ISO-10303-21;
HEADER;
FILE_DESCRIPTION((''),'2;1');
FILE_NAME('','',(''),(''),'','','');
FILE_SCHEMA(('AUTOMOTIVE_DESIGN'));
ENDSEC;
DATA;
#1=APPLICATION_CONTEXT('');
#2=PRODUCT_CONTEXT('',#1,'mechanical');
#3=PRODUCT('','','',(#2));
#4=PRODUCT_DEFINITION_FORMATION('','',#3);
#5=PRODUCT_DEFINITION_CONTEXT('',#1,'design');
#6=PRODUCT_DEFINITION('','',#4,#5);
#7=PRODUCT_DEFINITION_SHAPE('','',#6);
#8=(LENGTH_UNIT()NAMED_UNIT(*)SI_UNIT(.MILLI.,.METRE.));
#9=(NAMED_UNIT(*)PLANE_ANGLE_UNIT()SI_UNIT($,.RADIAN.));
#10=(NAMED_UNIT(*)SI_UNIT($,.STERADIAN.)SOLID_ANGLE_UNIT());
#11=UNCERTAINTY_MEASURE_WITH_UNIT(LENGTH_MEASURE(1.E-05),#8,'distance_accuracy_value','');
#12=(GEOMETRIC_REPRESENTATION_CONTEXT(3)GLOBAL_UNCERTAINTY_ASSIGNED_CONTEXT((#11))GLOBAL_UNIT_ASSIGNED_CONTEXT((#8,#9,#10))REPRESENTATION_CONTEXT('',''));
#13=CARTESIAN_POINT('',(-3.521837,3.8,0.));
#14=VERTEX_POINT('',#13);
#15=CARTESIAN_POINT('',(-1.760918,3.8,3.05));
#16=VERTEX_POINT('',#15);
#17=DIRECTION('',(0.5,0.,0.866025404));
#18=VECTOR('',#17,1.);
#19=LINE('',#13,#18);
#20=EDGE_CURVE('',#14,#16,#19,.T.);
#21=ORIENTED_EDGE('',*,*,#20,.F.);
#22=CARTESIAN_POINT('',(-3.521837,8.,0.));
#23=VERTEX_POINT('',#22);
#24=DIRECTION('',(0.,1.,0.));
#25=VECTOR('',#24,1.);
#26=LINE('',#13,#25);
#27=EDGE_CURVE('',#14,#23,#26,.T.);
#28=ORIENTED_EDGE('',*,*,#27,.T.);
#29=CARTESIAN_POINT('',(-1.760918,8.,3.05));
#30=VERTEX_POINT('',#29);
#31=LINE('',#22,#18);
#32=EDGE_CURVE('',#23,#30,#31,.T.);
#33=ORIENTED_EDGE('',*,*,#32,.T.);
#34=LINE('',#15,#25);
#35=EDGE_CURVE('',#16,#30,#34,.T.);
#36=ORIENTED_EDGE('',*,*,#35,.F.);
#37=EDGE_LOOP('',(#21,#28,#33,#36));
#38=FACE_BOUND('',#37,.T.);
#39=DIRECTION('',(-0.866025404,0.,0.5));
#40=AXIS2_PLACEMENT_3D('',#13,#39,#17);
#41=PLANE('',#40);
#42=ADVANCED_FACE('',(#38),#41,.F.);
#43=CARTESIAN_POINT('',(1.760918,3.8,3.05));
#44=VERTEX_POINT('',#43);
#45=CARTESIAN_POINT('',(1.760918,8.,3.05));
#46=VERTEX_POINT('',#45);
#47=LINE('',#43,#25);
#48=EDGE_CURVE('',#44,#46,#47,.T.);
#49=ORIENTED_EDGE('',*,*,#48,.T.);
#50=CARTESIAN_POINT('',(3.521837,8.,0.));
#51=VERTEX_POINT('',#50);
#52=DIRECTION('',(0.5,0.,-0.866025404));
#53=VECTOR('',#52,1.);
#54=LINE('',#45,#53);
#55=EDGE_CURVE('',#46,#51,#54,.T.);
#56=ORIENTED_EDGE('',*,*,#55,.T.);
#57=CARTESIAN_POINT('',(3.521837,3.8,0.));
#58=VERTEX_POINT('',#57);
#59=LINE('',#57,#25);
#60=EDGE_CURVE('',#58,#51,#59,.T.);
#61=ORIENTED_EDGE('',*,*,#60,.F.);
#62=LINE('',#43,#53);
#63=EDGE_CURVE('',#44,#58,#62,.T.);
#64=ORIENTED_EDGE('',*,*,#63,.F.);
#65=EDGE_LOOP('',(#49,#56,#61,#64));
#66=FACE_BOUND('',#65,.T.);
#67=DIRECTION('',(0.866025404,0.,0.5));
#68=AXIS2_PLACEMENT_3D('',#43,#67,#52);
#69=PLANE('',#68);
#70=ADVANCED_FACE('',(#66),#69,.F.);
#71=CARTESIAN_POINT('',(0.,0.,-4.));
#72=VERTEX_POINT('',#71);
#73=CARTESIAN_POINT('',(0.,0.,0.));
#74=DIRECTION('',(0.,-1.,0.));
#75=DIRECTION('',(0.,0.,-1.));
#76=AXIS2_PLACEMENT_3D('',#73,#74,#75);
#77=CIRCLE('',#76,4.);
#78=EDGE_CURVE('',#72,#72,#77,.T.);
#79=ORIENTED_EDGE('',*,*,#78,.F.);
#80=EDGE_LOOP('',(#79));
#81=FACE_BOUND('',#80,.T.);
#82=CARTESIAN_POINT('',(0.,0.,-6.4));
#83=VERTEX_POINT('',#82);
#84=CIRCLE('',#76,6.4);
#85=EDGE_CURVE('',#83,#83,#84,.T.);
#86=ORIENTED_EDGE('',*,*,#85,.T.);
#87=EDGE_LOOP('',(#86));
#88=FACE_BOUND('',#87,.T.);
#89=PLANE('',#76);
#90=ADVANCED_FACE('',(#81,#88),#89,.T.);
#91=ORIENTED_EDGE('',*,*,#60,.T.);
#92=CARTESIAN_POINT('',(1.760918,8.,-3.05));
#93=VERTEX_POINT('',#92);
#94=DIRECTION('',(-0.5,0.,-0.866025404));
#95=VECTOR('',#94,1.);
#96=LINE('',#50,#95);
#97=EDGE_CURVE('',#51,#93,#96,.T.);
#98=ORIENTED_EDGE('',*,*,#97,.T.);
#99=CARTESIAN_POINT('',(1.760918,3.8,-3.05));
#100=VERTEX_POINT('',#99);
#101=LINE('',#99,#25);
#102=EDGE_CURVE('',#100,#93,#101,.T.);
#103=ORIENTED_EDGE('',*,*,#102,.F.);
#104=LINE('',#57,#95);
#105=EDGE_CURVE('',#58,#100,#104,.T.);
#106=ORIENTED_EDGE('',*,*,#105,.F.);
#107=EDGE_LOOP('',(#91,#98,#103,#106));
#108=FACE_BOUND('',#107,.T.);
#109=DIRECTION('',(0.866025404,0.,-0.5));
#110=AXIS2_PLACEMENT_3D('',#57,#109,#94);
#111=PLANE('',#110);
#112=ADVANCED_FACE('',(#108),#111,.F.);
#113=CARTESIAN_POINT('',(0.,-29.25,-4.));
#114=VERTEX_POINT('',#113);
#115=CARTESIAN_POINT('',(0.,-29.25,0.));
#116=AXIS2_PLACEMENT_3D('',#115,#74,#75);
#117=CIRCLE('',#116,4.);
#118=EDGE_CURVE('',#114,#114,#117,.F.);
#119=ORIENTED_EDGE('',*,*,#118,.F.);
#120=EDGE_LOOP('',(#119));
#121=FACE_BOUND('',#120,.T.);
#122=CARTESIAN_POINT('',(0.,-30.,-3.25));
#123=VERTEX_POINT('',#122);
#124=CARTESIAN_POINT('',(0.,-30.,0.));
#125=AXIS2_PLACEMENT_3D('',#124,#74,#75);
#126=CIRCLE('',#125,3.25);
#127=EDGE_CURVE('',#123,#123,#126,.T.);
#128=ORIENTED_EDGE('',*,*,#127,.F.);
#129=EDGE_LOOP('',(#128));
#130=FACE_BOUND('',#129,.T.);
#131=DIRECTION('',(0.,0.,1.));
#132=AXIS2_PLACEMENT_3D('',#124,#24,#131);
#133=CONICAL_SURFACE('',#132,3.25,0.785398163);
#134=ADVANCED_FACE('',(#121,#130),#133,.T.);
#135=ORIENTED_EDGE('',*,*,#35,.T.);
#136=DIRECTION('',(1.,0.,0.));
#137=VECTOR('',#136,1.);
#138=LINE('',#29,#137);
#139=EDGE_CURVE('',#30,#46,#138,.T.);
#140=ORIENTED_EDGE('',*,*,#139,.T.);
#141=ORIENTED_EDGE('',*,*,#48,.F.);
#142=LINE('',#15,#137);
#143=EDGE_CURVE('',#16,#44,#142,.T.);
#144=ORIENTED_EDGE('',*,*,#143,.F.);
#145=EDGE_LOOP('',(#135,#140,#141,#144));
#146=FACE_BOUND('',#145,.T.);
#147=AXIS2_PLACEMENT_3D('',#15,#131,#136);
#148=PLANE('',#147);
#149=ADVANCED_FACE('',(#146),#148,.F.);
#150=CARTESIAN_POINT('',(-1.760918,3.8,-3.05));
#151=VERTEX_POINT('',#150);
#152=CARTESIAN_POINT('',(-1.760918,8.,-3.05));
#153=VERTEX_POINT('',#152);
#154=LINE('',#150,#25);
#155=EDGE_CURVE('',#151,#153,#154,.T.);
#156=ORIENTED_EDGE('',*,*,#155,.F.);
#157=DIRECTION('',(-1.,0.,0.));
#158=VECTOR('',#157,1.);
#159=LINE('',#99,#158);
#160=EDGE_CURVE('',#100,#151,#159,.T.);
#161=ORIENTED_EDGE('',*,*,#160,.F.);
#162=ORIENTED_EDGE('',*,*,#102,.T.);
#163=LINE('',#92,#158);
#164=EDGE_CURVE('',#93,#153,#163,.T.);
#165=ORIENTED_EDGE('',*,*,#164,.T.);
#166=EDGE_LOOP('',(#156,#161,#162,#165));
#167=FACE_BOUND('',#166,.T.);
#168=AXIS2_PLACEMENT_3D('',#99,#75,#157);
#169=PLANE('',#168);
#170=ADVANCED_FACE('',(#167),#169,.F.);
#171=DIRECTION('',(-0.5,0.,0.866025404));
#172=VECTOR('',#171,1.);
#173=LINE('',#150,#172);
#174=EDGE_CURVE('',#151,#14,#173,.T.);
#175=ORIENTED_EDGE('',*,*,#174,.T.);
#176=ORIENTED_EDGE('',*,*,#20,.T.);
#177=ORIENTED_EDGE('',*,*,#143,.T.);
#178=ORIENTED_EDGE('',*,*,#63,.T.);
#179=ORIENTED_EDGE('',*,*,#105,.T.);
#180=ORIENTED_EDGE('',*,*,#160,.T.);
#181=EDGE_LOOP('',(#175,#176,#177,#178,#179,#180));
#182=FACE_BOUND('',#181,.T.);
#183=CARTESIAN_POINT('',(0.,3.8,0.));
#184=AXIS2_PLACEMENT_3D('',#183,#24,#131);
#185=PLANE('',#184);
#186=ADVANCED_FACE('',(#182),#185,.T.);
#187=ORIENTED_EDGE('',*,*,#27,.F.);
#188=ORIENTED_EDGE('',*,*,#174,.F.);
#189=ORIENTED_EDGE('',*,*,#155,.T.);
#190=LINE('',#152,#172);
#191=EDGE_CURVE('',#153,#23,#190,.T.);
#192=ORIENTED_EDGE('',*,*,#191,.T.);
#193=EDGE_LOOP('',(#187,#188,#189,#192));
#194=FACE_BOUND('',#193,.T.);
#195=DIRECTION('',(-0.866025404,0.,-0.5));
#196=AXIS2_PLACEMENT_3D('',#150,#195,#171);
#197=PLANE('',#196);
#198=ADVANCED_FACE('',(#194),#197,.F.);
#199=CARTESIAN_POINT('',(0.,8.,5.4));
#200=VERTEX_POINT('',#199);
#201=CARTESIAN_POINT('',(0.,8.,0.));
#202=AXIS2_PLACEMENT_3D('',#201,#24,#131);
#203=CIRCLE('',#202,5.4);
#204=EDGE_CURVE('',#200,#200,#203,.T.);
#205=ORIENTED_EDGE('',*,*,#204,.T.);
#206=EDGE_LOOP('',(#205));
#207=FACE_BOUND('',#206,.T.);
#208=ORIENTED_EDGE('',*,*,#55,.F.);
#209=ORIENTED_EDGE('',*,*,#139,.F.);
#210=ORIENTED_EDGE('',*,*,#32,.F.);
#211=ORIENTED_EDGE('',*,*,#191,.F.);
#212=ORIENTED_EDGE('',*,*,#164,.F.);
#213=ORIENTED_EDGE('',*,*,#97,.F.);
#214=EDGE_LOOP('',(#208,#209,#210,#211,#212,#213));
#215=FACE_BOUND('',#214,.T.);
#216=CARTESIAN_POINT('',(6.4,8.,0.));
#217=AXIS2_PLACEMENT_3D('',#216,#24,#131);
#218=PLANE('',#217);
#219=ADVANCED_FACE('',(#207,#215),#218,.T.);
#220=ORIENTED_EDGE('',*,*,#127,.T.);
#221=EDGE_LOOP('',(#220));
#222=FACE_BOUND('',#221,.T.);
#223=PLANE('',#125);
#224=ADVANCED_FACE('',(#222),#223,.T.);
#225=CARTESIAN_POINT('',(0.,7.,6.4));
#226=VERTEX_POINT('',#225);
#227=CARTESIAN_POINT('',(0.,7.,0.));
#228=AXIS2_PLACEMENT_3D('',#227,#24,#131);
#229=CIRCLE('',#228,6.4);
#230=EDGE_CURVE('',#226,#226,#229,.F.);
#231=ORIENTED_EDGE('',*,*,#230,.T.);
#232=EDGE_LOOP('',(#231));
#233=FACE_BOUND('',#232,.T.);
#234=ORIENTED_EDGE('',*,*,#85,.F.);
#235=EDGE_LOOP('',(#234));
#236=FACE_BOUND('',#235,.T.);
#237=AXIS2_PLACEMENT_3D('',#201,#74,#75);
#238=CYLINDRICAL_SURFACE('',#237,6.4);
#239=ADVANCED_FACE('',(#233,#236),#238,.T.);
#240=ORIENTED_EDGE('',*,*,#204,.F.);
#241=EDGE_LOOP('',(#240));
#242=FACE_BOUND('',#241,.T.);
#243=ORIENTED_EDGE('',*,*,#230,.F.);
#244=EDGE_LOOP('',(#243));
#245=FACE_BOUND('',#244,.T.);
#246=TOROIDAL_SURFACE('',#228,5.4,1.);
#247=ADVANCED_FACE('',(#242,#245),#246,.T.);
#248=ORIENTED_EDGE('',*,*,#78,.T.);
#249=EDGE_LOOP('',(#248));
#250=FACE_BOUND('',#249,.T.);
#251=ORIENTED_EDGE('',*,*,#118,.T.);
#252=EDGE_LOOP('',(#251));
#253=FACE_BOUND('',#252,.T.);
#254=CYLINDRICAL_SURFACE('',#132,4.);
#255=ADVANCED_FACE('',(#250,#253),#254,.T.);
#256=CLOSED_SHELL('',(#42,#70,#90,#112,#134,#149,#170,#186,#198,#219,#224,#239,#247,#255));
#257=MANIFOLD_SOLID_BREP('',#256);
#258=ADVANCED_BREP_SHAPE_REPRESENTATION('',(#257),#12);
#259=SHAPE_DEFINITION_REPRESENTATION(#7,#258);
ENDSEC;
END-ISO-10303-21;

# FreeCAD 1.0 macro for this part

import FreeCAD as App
import Part
import Sketcher
Q = App.Units.Quantity


def edges_at(feature, points):
    """Names of the edges that pass closest to the given points."""
    edges = feature.Shape.Edges
    near = lambda p: min(range(len(edges)), key=lambda i: edges[i].distToShape(Part.Vertex(*p))[0])
    return sorted({f"Edge{near(p) + 1}" for p in points})


def add_polygon(sketch, points):
    """Adds a closed chain of lines whose ends are joined by coincident constraints."""
    first, n = sketch.GeometryCount, len(points)
    for a, b in zip(points, points[1:] + points[:1]):
        sketch.addGeometry(Part.LineSegment(App.Vector(*a, 0), App.Vector(*b, 0)), False)
    for i in range(n):
        sketch.addConstraint(Sketcher.Constraint("Coincident", first + i, 2, first + (i + 1) % n, 1))

doc = App.newDocument("Part")
body = doc.addObject("PartDesign::Body", "Body")

# Sketch on XY plane
sketch1 = doc.addObject("Sketcher::SketchObject", "Sketch")
body.addObject(sketch1)
sketch1.AttachmentSupport = (doc.XY_Plane, [""])
sketch1.MapMode = "FlatFace"
add_polygon(sketch1, [(0, 8), (0, 0), (6, 0), (6, 8)])  # lines 0-3
sketch1.addConstraint(Sketcher.Constraint("Vertical", 0))
sketch1.addConstraint(Sketcher.Constraint("Horizontal", 1))
sketch1.addConstraint(Sketcher.Constraint("Vertical", 2))
sketch1.addConstraint(Sketcher.Constraint("Horizontal", 3))
sketch1.addConstraint(Sketcher.Constraint("Coincident", 0, 2, -1, 1))
sketch1.addConstraint(Sketcher.Constraint("DistanceY", 0, 2, 0, 1, 8.0))
sketch1.addConstraint(Sketcher.Constraint("DistanceX", 1, 1, 1, 2, 6.4))
revolution = doc.addObject("PartDesign::Revolution", "Revolution")
body.addObject(revolution)
revolution.Profile = sketch1
revolution.ReferenceAxis = (sketch1, ["V_Axis"])
revolution.Angle = 360

# Sketch on XZ plane
sketch2 = doc.addObject("Sketcher::SketchObject", "Sketch001")
body.addObject(sketch2)
sketch2.AttachmentSupport = (doc.XZ_Plane, [""])
sketch2.MapMode = "FlatFace"
sketch2.addGeometry(Part.Circle(App.Vector(0, 0, 0), App.Vector(0, 0, 1), 4), False)
sketch2.addConstraint(Sketcher.Constraint("Coincident", 0, 3, -1, 1))
sketch2.addConstraint(Sketcher.Constraint("Diameter", 0, 8.0))
pad1 = doc.addObject("PartDesign::Pad", "Pad")
body.addObject(pad1)
pad1.Profile = sketch2
pad1.Length = 30

# Sketch on XZ plane
sketch3 = doc.addObject("Sketcher::SketchObject", "Sketch002")
body.addObject(sketch3)
sketch3.AttachmentSupport = (doc.XZ_Plane, [""])
sketch3.MapMode = "FlatFace"
sketch3.AttachmentOffset = App.Placement(App.Vector(0, 0, -8), App.Rotation())
add_polygon(sketch3, [(-1.8, 3), (1.8, 3), (3.5, 0), (1.8, -3), (-1.8, -3), (-3.5, 0)])  # lines 0-5
sketch3.addConstraint(Sketcher.Constraint("Horizontal", 0))
sketch3.addConstraint(Sketcher.Constraint("Horizontal", 3))
sketch3.addConstraint(Sketcher.Constraint("Symmetric", 0, 2, 3, 2, -1, 1))
sketch3.addConstraint(Sketcher.Constraint("Symmetric", 1, 2, 4, 2, -1, 1))
sketch3.addConstraint(Sketcher.Constraint("PointOnObject", 1, 2, -1))
sketch3.addConstraint(Sketcher.Constraint("Parallel", 2, 5))
sketch3.addConstraint(Sketcher.Constraint("Vertical", 0, 2, 2, 2))
sketch3.addConstraint(Sketcher.Constraint("Angle", 1, Q("-60 deg")))
sketch3.addConstraint(Sketcher.Constraint("DistanceY", 2, 2, 0, 2, 6.1))
sketch3.addConstraint(Sketcher.Constraint("DistanceX", 0, 1, 0, 2, 3.521837))
pocket1 = doc.addObject("PartDesign::Pocket", "Pocket")
body.addObject(pocket1)
pocket1.Profile = sketch3
pocket1.Length = 4.2
pocket1.Reversed = True
doc.recompute()

chamfer = doc.addObject("PartDesign::Chamfer", "Chamfer")
body.addObject(chamfer)
chamfer.Base = (pocket1, edges_at(pocket1, [(0, -30, 4)]))
chamfer.Size = 0.75
doc.recompute()

fillet = doc.addObject("PartDesign::Fillet", "Fillet")
body.addObject(fillet)
fillet.Base = (chamfer, edges_at(chamfer, [(0, 8, 6.4)]))
fillet.Radius = 1

doc.recompute()
